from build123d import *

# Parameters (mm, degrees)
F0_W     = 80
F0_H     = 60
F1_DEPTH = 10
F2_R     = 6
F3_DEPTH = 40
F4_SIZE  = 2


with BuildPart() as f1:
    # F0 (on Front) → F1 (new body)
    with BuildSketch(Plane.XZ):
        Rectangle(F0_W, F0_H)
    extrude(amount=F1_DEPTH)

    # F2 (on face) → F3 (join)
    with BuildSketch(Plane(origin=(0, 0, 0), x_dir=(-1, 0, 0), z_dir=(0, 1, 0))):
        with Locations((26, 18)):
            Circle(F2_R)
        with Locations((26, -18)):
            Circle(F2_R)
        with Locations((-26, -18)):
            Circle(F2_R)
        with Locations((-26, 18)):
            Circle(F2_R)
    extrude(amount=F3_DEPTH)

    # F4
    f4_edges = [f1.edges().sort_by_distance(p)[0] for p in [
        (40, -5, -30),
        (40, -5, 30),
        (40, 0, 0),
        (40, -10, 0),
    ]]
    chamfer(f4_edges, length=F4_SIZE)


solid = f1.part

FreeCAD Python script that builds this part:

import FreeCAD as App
import Part
import Sketcher


def edges_at(feature, points):
    """Names of the edges that pass closest to the given points."""
    edges = feature.Shape.Edges
    near = lambda p: min(range(len(edges)), key=lambda i: edges[i].distToShape(Part.Vertex(*p))[0])
    return sorted({f"Edge{near(p) + 1}" for p in points})


def add_polygon(sketch, points):
    """Adds a closed chain of lines whose ends are joined by coincident constraints."""
    first, n = sketch.GeometryCount, len(points)
    for a, b in zip(points, points[1:] + points[:1]):
        sketch.addGeometry(Part.LineSegment(App.Vector(*a, 0), App.Vector(*b, 0)), False)
    for i in range(n):
        sketch.addConstraint(Sketcher.Constraint("Coincident", first + i, 2, first + (i + 1) % n, 1))

doc = App.newDocument("Part")
params = doc.addObject("Spreadsheet::Sheet", "Params")
for row, (alias, value) in enumerate([
    ("sketch1_width", "80 mm"),
    ("sketch1_height", "60 mm"),
    ("pad1_length", "10 mm"),
    ("sketch2_diameter", "12 mm"),
    ("pad2_length", "40 mm"),
    ("chamfer_size", "2 mm"),
], start=1):
    params.set(f"A{row}", alias)
    params.set(f"B{row}", "=" + value)
    params.setAlias(f"B{row}", alias)

body = doc.addObject("PartDesign::Body", "Body")

sketch1 = body.newObject("Sketcher::SketchObject", "Sketch")
sketch1.AttachmentSupport = (doc.getObject("XZ_Plane"), [""])
sketch1.MapMode = "FlatFace"
add_polygon(sketch1, [(-40, 30), (-40, -30), (40, -30), (40, 30)])
sketch1.addConstraint(Sketcher.Constraint("Vertical", 0))
sketch1.addConstraint(Sketcher.Constraint("Horizontal", 1))
sketch1.addConstraint(Sketcher.Constraint("Vertical", 2))
sketch1.addConstraint(Sketcher.Constraint("Horizontal", 3))
sketch1.addConstraint(Sketcher.Constraint("Symmetric", 0, 2, 2, 2, -1, 1))
sketch1.addConstraint(Sketcher.Constraint("DistanceX", 1, 1, 1, 2, 80.0))
sketch1.addConstraint(Sketcher.Constraint("DistanceY", 0, 2, 0, 1, 60.0))
sketch1.setExpression("Constraints[9]", "Params.sketch1_width")
sketch1.setExpression("Constraints[10]", "Params.sketch1_height")
pad1 = body.newObject("PartDesign::Pad", "Pad")
pad1.Profile = sketch1
pad1.setExpression("Length", "Params.pad1_length")

sketch2 = body.newObject("Sketcher::SketchObject", "Sketch001")
sketch2.AttachmentSupport = (doc.getObject("XZ_Plane"), [""])
sketch2.MapMode = "FlatFace"
sketch2.addGeometry(Part.Circle(App.Vector(-26, 18, 0), App.Vector(0, 0, 1), 6), False)
sketch2.addGeometry(Part.Circle(App.Vector(-26, -18, 0), App.Vector(0, 0, 1), 6), False)
sketch2.addGeometry(Part.Circle(App.Vector(26, -18, 0), App.Vector(0, 0, 1), 6), False)
sketch2.addGeometry(Part.Circle(App.Vector(26, 18, 0), App.Vector(0, 0, 1), 6), False)
sketch2.addConstraint(Sketcher.Constraint("Equal", 0, 1))
sketch2.addConstraint(Sketcher.Constraint("Equal", 1, 2))
sketch2.addConstraint(Sketcher.Constraint("Equal", 2, 3))
sketch2.addConstraint(Sketcher.Constraint("Symmetric", 0, 3, 2, 3, -1, 1))
sketch2.addConstraint(Sketcher.Constraint("Symmetric", 1, 3, 3, 3, -1, 1))
sketch2.addConstraint(Sketcher.Constraint("Symmetric", 1, 3, 2, 3, -2))
sketch2.addConstraint(Sketcher.Constraint("Diameter", 0, 12.0))
sketch2.addConstraint(Sketcher.Constraint("DistanceX", 0, 3, -1, 1, 26.0))
sketch2.addConstraint(Sketcher.Constraint("DistanceY", -1, 1, 0, 3, 18.0))
sketch2.setExpression("Constraints[6]", "Params.sketch2_diameter")
pad2 = body.newObject("PartDesign::Pad", "Pad001")
pad2.Profile = sketch2
pad2.setExpression("Length", "Params.pad2_length")
pad2.Reversed = True
doc.recompute()

chamfer = body.newObject("PartDesign::Chamfer", "Chamfer")
chamfer.Base = (pad2, edges_at(pad2, [
    (40, -5, -30),
    (40, -5, 30),
    (40, 0, 0),
    (40, -10, 0),
]))
chamfer.setExpression("Size", "Params.chamfer_size")

doc.recompute()
